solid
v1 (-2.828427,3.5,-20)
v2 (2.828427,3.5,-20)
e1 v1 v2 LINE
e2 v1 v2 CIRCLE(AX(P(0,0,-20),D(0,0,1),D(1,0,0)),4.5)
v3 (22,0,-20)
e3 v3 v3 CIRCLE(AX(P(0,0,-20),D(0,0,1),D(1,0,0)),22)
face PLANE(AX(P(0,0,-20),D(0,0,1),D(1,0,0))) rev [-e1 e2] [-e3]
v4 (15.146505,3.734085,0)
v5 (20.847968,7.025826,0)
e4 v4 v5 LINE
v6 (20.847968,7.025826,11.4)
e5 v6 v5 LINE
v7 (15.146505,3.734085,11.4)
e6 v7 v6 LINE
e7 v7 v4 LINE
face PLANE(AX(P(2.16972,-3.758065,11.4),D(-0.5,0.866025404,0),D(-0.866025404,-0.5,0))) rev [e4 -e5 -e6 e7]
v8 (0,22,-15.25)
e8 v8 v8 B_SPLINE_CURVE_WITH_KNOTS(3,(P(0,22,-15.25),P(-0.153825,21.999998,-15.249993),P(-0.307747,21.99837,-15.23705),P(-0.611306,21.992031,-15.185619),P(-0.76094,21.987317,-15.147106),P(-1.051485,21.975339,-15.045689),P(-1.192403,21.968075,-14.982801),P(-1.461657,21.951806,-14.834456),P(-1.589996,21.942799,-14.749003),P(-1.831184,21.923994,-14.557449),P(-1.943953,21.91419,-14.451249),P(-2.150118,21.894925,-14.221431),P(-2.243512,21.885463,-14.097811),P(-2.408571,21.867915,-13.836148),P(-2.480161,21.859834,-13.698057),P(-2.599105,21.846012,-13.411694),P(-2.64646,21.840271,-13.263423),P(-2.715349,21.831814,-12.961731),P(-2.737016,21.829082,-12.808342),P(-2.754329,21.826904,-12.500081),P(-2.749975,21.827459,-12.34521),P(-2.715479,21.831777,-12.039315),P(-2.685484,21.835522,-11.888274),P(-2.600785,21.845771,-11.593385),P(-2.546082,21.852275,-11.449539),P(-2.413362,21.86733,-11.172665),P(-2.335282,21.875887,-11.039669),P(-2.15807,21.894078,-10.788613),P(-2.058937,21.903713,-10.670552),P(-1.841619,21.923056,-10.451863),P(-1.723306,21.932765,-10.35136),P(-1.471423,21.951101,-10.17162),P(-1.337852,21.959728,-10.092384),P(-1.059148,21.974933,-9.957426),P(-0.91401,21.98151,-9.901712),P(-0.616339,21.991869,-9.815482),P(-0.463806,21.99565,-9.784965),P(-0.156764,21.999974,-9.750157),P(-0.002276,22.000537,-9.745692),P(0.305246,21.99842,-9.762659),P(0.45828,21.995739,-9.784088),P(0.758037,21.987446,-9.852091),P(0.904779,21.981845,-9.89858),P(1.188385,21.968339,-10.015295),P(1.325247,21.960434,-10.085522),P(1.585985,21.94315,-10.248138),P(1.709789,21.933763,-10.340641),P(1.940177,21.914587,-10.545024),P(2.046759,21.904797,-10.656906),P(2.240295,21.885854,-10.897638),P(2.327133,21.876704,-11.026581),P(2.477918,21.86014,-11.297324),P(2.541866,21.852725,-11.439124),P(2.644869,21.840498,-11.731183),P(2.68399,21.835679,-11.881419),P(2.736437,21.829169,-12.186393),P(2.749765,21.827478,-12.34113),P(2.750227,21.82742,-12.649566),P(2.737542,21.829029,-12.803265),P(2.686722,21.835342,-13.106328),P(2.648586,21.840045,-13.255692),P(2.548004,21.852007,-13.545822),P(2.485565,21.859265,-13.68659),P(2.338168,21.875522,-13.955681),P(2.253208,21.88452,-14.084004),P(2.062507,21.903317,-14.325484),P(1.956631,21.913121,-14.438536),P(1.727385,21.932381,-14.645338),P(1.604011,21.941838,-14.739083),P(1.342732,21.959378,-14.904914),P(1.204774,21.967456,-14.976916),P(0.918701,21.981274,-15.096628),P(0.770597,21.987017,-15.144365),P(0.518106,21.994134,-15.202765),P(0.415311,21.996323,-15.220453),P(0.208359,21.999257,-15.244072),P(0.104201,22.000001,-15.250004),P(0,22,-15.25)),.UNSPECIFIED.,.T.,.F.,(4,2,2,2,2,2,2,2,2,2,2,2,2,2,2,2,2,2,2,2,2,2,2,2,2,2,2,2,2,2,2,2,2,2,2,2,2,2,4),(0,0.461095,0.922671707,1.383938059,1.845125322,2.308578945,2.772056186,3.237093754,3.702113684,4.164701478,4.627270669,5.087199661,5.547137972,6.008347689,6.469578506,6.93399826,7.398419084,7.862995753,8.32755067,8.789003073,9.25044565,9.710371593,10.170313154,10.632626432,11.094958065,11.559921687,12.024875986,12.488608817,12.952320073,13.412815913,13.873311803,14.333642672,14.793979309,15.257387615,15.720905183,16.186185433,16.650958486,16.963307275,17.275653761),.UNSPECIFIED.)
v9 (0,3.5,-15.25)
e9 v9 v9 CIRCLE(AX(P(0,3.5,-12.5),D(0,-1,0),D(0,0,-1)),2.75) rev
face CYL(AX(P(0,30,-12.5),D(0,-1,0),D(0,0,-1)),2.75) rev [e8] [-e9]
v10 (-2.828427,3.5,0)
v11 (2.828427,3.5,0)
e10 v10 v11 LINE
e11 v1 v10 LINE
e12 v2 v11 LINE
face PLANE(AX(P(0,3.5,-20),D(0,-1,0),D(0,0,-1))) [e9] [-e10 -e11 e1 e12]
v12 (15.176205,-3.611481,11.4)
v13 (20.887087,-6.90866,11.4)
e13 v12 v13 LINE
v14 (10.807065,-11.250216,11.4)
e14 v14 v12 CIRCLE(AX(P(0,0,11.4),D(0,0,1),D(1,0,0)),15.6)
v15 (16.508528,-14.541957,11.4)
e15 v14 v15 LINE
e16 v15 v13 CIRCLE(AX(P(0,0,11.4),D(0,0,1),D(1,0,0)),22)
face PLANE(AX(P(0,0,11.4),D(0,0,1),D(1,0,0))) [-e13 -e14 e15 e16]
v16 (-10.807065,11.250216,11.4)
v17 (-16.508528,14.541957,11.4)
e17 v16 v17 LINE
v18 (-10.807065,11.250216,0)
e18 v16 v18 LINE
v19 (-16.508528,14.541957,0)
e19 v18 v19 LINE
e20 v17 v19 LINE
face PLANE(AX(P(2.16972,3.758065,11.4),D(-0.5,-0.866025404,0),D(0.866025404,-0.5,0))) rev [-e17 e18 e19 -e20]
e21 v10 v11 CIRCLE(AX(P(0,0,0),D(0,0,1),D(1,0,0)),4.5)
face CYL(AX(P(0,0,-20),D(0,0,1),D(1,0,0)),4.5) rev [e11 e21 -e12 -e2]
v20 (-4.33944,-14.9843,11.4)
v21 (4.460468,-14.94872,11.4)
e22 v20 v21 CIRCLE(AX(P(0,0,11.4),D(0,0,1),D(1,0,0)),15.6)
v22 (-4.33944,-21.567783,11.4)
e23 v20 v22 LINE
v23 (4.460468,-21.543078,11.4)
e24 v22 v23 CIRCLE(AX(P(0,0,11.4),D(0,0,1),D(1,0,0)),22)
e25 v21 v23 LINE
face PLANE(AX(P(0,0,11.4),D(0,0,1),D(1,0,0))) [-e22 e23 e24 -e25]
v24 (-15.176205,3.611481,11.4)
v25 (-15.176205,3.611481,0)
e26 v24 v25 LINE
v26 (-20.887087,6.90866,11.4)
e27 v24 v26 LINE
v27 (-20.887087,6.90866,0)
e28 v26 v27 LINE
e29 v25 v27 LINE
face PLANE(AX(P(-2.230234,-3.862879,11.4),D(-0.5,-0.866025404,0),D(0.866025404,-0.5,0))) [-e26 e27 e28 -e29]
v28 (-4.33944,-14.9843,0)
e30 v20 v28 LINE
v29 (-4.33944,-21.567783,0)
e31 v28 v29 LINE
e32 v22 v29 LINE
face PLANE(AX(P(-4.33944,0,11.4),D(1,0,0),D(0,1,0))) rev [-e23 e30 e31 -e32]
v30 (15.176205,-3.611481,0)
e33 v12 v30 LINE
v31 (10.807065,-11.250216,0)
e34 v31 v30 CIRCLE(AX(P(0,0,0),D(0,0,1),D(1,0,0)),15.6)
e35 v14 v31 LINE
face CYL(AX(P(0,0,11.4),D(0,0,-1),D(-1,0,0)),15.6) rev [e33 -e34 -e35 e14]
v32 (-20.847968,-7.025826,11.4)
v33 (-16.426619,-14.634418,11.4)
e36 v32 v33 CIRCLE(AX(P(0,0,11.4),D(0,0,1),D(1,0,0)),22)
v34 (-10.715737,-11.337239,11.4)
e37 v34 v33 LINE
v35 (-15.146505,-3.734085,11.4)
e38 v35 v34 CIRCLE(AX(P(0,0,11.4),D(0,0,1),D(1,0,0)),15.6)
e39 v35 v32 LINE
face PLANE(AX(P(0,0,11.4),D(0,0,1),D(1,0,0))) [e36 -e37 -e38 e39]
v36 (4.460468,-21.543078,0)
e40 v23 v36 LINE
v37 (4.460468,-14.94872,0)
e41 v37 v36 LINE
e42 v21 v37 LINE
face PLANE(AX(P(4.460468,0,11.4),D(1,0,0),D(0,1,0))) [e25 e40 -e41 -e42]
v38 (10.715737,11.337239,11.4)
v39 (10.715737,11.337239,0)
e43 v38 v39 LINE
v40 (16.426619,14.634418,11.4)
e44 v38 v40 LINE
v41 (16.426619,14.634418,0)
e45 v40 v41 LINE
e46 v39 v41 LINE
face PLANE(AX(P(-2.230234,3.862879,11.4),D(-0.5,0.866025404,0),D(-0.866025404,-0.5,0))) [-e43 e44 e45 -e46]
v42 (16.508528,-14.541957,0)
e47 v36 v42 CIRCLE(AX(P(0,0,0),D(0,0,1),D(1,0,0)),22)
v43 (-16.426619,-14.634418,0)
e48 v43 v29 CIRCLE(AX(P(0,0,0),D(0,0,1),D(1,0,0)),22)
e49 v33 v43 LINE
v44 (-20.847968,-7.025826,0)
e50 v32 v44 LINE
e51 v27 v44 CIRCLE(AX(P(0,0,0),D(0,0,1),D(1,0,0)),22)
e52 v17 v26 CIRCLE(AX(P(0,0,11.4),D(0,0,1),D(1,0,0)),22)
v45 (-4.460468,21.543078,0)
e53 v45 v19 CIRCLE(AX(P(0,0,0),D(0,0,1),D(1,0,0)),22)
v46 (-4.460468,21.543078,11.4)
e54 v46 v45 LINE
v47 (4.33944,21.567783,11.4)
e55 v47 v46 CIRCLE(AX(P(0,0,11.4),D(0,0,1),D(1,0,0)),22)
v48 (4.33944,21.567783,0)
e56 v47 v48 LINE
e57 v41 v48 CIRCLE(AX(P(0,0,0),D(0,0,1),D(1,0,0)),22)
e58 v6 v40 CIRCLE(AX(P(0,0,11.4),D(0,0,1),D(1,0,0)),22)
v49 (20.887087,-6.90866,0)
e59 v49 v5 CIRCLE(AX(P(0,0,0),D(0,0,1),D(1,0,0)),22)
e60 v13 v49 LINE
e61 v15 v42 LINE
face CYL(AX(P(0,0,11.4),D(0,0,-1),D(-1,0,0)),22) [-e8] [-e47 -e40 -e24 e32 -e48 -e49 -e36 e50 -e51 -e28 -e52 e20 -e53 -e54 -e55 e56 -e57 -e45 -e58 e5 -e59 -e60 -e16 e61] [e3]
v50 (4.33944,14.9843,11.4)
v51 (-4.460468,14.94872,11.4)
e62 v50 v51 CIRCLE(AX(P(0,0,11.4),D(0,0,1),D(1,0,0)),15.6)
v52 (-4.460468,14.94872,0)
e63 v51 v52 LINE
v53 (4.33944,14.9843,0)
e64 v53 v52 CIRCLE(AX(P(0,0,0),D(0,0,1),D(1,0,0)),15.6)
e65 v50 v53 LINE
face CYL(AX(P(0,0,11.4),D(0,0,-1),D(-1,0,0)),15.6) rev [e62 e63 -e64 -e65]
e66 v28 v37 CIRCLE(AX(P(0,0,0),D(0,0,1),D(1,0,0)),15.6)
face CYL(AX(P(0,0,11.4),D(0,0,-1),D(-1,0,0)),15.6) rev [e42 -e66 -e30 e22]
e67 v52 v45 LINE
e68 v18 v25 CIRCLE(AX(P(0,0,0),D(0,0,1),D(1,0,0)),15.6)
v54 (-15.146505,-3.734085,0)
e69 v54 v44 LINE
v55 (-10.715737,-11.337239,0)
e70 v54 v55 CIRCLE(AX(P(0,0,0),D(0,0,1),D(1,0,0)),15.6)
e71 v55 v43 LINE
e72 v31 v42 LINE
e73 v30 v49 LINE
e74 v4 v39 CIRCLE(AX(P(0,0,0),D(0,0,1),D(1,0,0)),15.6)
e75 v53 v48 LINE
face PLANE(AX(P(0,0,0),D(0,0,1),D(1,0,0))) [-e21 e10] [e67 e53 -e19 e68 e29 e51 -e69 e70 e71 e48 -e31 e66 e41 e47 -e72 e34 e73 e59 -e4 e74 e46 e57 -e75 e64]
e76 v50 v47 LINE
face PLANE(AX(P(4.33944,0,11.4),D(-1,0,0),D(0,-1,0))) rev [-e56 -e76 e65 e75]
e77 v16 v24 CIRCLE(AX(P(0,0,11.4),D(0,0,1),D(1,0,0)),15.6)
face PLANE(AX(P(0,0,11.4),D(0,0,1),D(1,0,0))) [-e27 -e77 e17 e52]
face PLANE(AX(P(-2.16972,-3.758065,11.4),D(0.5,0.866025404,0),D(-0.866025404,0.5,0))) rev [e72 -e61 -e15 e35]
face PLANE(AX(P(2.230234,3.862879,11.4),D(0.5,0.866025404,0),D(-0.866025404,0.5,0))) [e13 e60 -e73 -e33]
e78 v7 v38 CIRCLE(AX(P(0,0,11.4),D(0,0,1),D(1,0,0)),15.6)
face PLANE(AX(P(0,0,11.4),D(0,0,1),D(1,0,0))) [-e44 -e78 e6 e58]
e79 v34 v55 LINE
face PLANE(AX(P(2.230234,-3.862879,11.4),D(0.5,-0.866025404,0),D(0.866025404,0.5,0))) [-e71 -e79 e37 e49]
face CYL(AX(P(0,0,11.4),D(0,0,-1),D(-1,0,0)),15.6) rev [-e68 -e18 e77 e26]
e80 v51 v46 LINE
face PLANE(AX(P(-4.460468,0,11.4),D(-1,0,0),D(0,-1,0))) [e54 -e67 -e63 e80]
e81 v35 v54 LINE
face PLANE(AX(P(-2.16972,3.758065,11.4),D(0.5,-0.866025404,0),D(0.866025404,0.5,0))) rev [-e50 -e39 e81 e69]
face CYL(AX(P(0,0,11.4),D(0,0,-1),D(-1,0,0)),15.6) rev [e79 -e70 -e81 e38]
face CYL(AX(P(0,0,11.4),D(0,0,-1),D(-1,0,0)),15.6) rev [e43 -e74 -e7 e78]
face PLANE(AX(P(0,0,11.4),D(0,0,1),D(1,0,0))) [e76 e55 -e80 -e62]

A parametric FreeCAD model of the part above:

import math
import FreeCAD as App
import Part
import Sketcher

V = App.Vector
Q = App.Units.Quantity

doc = App.newDocument("Part")
body = doc.addObject("PartDesign::Body", "Body")

# Sketch on XY plane
sketch1 = doc.addObject("Sketcher::SketchObject", "Sketch")
body.addObject(sketch1)
sketch1.AttachmentSupport = (doc.XY_Plane, [""])
sketch1.MapMode = "FlatFace"
sketch1.addGeometry([
    Part.ArcOfCircle(Part.Circle(V(0, 0, 0), V(0, 0, 1), 16), math.radians(74), math.radians(107)),
    Part.LineSegment(V(4, 15, 0), V(4, 22, 0)),
    Part.ArcOfCircle(Part.Circle(V(0, 0, 0), V(0, 0, 1), 22), math.radians(79), math.radians(102)),
    Part.LineSegment(V(-4, 22, 0), V(-4, 15, 0)),
], False)
sketch1.addConstraint([
    Sketcher.Constraint("Coincident", 0, 1, 1, 1),
    Sketcher.Constraint("Coincident", 1, 2, 2, 1),
    Sketcher.Constraint("Coincident", 2, 2, 3, 1),
    Sketcher.Constraint("Coincident", 3, 2, 0, 2),
    Sketcher.Constraint("Vertical", 1),
    Sketcher.Constraint("Vertical", 3),
    Sketcher.Constraint("Coincident", 0, 3, -1, 1),
    Sketcher.Constraint("Coincident", 2, 3, -1, 1),
    Sketcher.Constraint("Radius", 2, Q("22 mm")),
    Sketcher.Constraint("Radius", 0, Q("15.6 mm")),
    Sketcher.Constraint("DistanceY", 3, 2, 3, 1, Q("6.594359 mm")),
    Sketcher.Constraint("DistanceY", -1, 1, 0, 1, Q("14.9843 mm")),
])
pad1 = doc.addObject("PartDesign::Pad", "Pad")
body.addObject(pad1)
pad1.Profile = sketch1
pad1.Length = 11.4
body2 = doc.addObject("PartDesign::Body", "Body001")

# Sketch on XY plane
sketch2 = doc.addObject("Sketcher::SketchObject", "Sketch001")
body2.addObject(sketch2)
sketch2.AttachmentSupport = (doc.getObject("XY_Plane001"), [""])
sketch2.MapMode = "FlatFace"
sketch2.addGeometry([
    Part.LineSegment(V(16, 15, 0), V(11, 11, 0)),
    Part.ArcOfCircle(Part.Circle(V(0, 0, 0), V(0, 0, 1), 16), math.radians(14), math.radians(47)),
    Part.LineSegment(V(15, 4, 0), V(21, 7, 0)),
    Part.ArcOfCircle(Part.Circle(V(0, 0, 0), V(0, 0, 1), 22), math.radians(19), math.radians(42)),
], False)
sketch2.addConstraint([
    Sketcher.Constraint("Coincident", 0, 2, 1, 2),
    Sketcher.Constraint("Coincident", 1, 1, 2, 1),
    Sketcher.Constraint("Coincident", 2, 2, 3, 1),
    Sketcher.Constraint("Coincident", 3, 2, 0, 1),
    Sketcher.Constraint("Coincident", 1, 3, -1, 1),
    Sketcher.Constraint("Coincident", 3, 3, -1, 1),
    Sketcher.Constraint("Parallel", 0, 2),
    Sketcher.Constraint("Radius", 3, Q("22 mm")),
    Sketcher.Constraint("Radius", 1, Q("15.6 mm")),
    Sketcher.Constraint("Angle", 0, Q("-150 deg")),
    Sketcher.Constraint("Distance", 0, Q("6.594359 mm")),
    Sketcher.Constraint("DistanceX", 0, 2, 2, 2, Q("10.132231 mm")),
])
pad2 = doc.addObject("PartDesign::Pad", "Pad001")
body2.addObject(pad2)
pad2.Profile = sketch2
pad2.Length = 11.4
body3 = doc.addObject("PartDesign::Body", "Body002")

# Sketch on XY plane
sketch3 = doc.addObject("Sketcher::SketchObject", "Sketch002")
body3.addObject(sketch3)
sketch3.AttachmentSupport = (doc.getObject("XY_Plane002"), [""])
sketch3.MapMode = "FlatFace"
sketch3.addGeometry([
    Part.LineSegment(V(21, -7, 0), V(15, -4, 0)),
    Part.ArcOfCircle(Part.Circle(V(0, 0, 0), V(0, 0, 1), 16), math.radians(-46), math.radians(-13)),
    Part.LineSegment(V(11, -11, 0), V(17, -15, 0)),
    Part.ArcOfCircle(Part.Circle(V(0, 0, 0), V(0, 0, 1), 22), math.radians(-41), math.radians(-18)),
], False)
sketch3.addConstraint([
    Sketcher.Constraint("Coincident", 0, 2, 1, 2),
    Sketcher.Constraint("Coincident", 1, 1, 2, 1),
    Sketcher.Constraint("Coincident", 2, 2, 3, 1),
    Sketcher.Constraint("Coincident", 3, 2, 0, 1),
    Sketcher.Constraint("Coincident", 1, 3, -1, 1),
    Sketcher.Constraint("Coincident", 3, 3, -1, 1),
    Sketcher.Constraint("Parallel", 0, 2),
    Sketcher.Constraint("Radius", 3, Q("22 mm")),
    Sketcher.Constraint("Radius", 1, Q("15.6 mm")),
    Sketcher.Constraint("Angle", 0, Q("150 deg")),
    Sketcher.Constraint("Distance", 0, Q("6.594359 mm")),
    Sketcher.Constraint("DistanceX", 1, 1, 0, 2, Q("4.36914 mm")),
])
pad3 = doc.addObject("PartDesign::Pad", "Pad002")
body3.addObject(pad3)
pad3.Profile = sketch3
pad3.Length = 11.4
body4 = doc.addObject("PartDesign::Body", "Body003")

# Sketch on XY plane
sketch4 = doc.addObject("Sketcher::SketchObject", "Sketch003")
body4.addObject(sketch4)
sketch4.AttachmentSupport = (doc.getObject("XY_Plane003"), [""])
sketch4.MapMode = "FlatFace"
sketch4.addGeometry([
    Part.LineSegment(V(4, -22, 0), V(4, -15, 0)),
    Part.ArcOfCircle(Part.Circle(V(0, 0, 0), V(0, 0, 1), 16), math.radians(-106), math.radians(-73)),
    Part.LineSegment(V(-4, -15, 0), V(-4, -22, 0)),
    Part.ArcOfCircle(Part.Circle(V(0, 0, 0), V(0, 0, 1), 22), math.radians(-101), math.radians(-78)),
], False)
sketch4.addConstraint([
    Sketcher.Constraint("Coincident", 0, 2, 1, 2),
    Sketcher.Constraint("Coincident", 1, 1, 2, 1),
    Sketcher.Constraint("Coincident", 2, 2, 3, 1),
    Sketcher.Constraint("Coincident", 3, 2, 0, 1),
    Sketcher.Constraint("Vertical", 0),
    Sketcher.Constraint("Vertical", 2),
    Sketcher.Constraint("Coincident", 1, 3, -1, 1),
    Sketcher.Constraint("Coincident", 3, 3, -1, 1),
    Sketcher.Constraint("Radius", 3, Q("22 mm")),
    Sketcher.Constraint("Radius", 1, Q("15.6 mm")),
    Sketcher.Constraint("DistanceY", 0, 1, 0, 2, Q("6.594359 mm")),
    Sketcher.Constraint("DistanceY", 1, 1, -1, 1, Q("14.9843 mm")),
])
pad4 = doc.addObject("PartDesign::Pad", "Pad003")
body4.addObject(pad4)
pad4.Profile = sketch4
pad4.Length = 11.4
body5 = doc.addObject("PartDesign::Body", "Body004")

# Sketch on XY plane
sketch5 = doc.addObject("Sketcher::SketchObject", "Sketch004")
body5.addObject(sketch5)
sketch5.AttachmentSupport = (doc.getObject("XY_Plane004"), [""])
sketch5.MapMode = "FlatFace"
sketch5.addGeometry([
    Part.ArcOfCircle(Part.Circle(V(0, 0, 0), V(0, 0, 1), 16), math.radians(-166), math.radians(-133)),
    Part.LineSegment(V(-15, -4, 0), V(-21, -7, 0)),
    Part.ArcOfCircle(Part.Circle(V(0, 0, 0), V(0, 0, 1), 22), math.radians(-161), math.radians(-138)),
    Part.LineSegment(V(-16, -15, 0), V(-11, -11, 0)),
], False)
sketch5.addConstraint([
    Sketcher.Constraint("Coincident", 0, 1, 1, 1),
    Sketcher.Constraint("Coincident", 1, 2, 2, 1),
    Sketcher.Constraint("Coincident", 2, 2, 3, 1),
    Sketcher.Constraint("Coincident", 3, 2, 0, 2),
    Sketcher.Constraint("Coincident", 0, 3, -1, 1),
    Sketcher.Constraint("Coincident", 2, 3, -1, 1),
    Sketcher.Constraint("Parallel", 1, 3),
    Sketcher.Constraint("Radius", 2, Q("22 mm")),
    Sketcher.Constraint("Radius", 0, Q("15.6 mm")),
    Sketcher.Constraint("Angle", 1, Q("-150 deg")),
    Sketcher.Constraint("Distance", 3, Q("6.594359 mm")),
    Sketcher.Constraint("DistanceX", 1, 2, 2, 2, Q("4.421349 mm")),
])
pad5 = doc.addObject("PartDesign::Pad", "Pad004")
body5.addObject(pad5)
pad5.Profile = sketch5
pad5.Length = 11.4
body6 = doc.addObject("PartDesign::Body", "Body005")

# Sketch on XY plane
sketch6 = doc.addObject("Sketcher::SketchObject", "Sketch005")
body6.addObject(sketch6)
sketch6.AttachmentSupport = (doc.getObject("XY_Plane005"), [""])
sketch6.MapMode = "FlatFace"
sketch6.addGeometry([
    Part.ArcOfCircle(Part.Circle(V(0, 0, 0), V(0, 0, 1), 16), math.radians(134), math.radians(167)),
    Part.LineSegment(V(-11, 11, 0), V(-17, 15, 0)),
    Part.ArcOfCircle(Part.Circle(V(0, 0, 0), V(0, 0, 1), 22), math.radians(139), math.radians(162)),
    Part.LineSegment(V(-21, 7, 0), V(-15, 4, 0)),
], False)
sketch6.addConstraint([
    Sketcher.Constraint("Coincident", 0, 1, 1, 1),
    Sketcher.Constraint("Coincident", 1, 2, 2, 1),
    Sketcher.Constraint("Coincident", 2, 2, 3, 1),
    Sketcher.Constraint("Coincident", 3, 2, 0, 2),
    Sketcher.Constraint("Coincident", 0, 3, -1, 1),
    Sketcher.Constraint("Coincident", 2, 3, -1, 1),
    Sketcher.Constraint("Parallel", 1, 3),
    Sketcher.Constraint("Radius", 2, Q("22 mm")),
    Sketcher.Constraint("Radius", 0, Q("15.6 mm")),
    Sketcher.Constraint("Angle", 1, Q("150 deg")),
    Sketcher.Constraint("Distance", 3, Q("6.594359 mm")),
    Sketcher.Constraint("DistanceY", 0, 1, 1, 2, Q("3.291741 mm")),
])
pad6 = doc.addObject("PartDesign::Pad", "Pad005")
body6.addObject(pad6)
pad6.Profile = sketch6
pad6.Length = 11.4
body.AllowCompound = True
doc.recompute()

boolean = doc.addObject("PartDesign::Boolean", "Boolean")
body.addObject(boolean)
boolean.Type = "Fuse"
boolean.addObjects([body2])
doc.recompute()

boolean2 = doc.addObject("PartDesign::Boolean", "Boolean001")
body.addObject(boolean2)
boolean2.Type = "Fuse"
boolean2.addObjects([body3])
doc.recompute()

boolean3 = doc.addObject("PartDesign::Boolean", "Boolean002")
body.addObject(boolean3)
boolean3.Type = "Fuse"
boolean3.addObjects([body4])
doc.recompute()

boolean4 = doc.addObject("PartDesign::Boolean", "Boolean003")
body.addObject(boolean4)
boolean4.Type = "Fuse"
boolean4.addObjects([body5])
doc.recompute()

boolean5 = doc.addObject("PartDesign::Boolean", "Boolean004")
body.addObject(boolean5)
boolean5.Type = "Fuse"
boolean5.addObjects([body6])

# Sketch on XY plane
sketch7 = doc.addObject("Sketcher::SketchObject", "Sketch006")
body.addObject(sketch7)
sketch7.AttachmentSupport = (doc.XY_Plane, [""])
sketch7.MapMode = "FlatFace"
sketch7.AttachmentOffset = App.Placement(V(0, 0, -20), App.Rotation())
sketch7.addGeometry([
    Part.ArcOfCircle(Part.Circle(V(0, 0, 0), V(0, 0, 1), 22), math.radians(42), math.radians(79)),  # 0
    Part.ArcOfCircle(Part.Circle(V(0, 0, 0), V(0, 0, 1), 22), math.radians(79), math.radians(102)),  # 1
    Part.ArcOfCircle(Part.Circle(V(0, 0, 0), V(0, 0, 1), 22), math.radians(102), math.radians(139)),  # 2
    Part.ArcOfCircle(Part.Circle(V(0, 0, 0), V(0, 0, 1), 22), math.radians(139), math.radians(162)),  # 3
    Part.ArcOfCircle(Part.Circle(V(0, 0, 0), V(0, 0, 1), 22), math.radians(162), math.radians(199)),  # 4
    Part.ArcOfCircle(Part.Circle(V(0, 0, 0), V(0, 0, 1), 22), math.radians(-161), math.radians(-138)),  # 5
    Part.ArcOfCircle(Part.Circle(V(0, 0, 0), V(0, 0, 1), 22), math.radians(-138), math.radians(-101)),  # 6
    Part.ArcOfCircle(Part.Circle(V(0, 0, 0), V(0, 0, 1), 22), math.radians(-101), math.radians(-78)),  # 7
    Part.ArcOfCircle(Part.Circle(V(0, 0, 0), V(0, 0, 1), 22), math.radians(-78), math.radians(-41)),  # 8
    Part.ArcOfCircle(Part.Circle(V(0, 0, 0), V(0, 0, 1), 22), math.radians(-41), math.radians(-18)),  # 9
    Part.ArcOfCircle(Part.Circle(V(0, 0, 0), V(0, 0, 1), 22), math.radians(-18.3), math.radians(0)),  # 10
    Part.ArcOfCircle(Part.Circle(V(0, 0, 0), V(0, 0, 1), 22), math.radians(0), math.radians(18.62)),  # 11
    Part.ArcOfCircle(Part.Circle(V(0, 0, 0), V(0, 0, 1), 22), math.radians(19), math.radians(42)),  # 12
    Part.LineSegment(V(-2.8, 3.5, 0), V(2.8, 3.5, 0)),  # 13
    Part.ArcOfCircle(Part.Circle(V(0, 0, 0), V(0, 0, 1), 4.5), math.radians(129), math.radians(411)),  # 14
], False)
sketch7.addConstraint([
    Sketcher.Constraint("Tangent", 0, 2, 1, 1),
    Sketcher.Constraint("Tangent", 1, 2, 2, 1),
    Sketcher.Constraint("Tangent", 2, 2, 3, 1),
    Sketcher.Constraint("Tangent", 3, 2, 4, 1),
    Sketcher.Constraint("Tangent", 4, 2, 5, 1),
    Sketcher.Constraint("Tangent", 5, 2, 6, 1),
    Sketcher.Constraint("Tangent", 6, 2, 7, 1),
    Sketcher.Constraint("Tangent", 7, 2, 8, 1),
    Sketcher.Constraint("Tangent", 8, 2, 9, 1),
    Sketcher.Constraint("Tangent", 9, 2, 10, 1),
    Sketcher.Constraint("Tangent", 10, 2, 11, 1),
    Sketcher.Constraint("Tangent", 11, 2, 12, 1),
    Sketcher.Constraint("Tangent", 12, 2, 0, 1),
    Sketcher.Constraint("Coincident", 13, 1, 14, 1),
    Sketcher.Constraint("Coincident", 14, 2, 13, 2),
    Sketcher.Constraint("Horizontal", 13),
    Sketcher.Constraint("Coincident", 0, 3, -1, 1),
    Sketcher.Constraint("Coincident", 2, 3, -1, 1),
    Sketcher.Constraint("Coincident", 4, 3, -1, 1),
    Sketcher.Constraint("Coincident", 6, 3, -1, 1),
    Sketcher.Constraint("Coincident", 8, 3, -1, 1),
    Sketcher.Constraint("Coincident", 10, 3, -1, 1),
    Sketcher.Constraint("Coincident", 14, 3, -1, 1),
    Sketcher.Constraint("PointOnObject", 10, 2, -1),
    Sketcher.Constraint("Radius", 0, Q("22 mm")),
    Sketcher.Constraint("Radius", 14, Q("4.5 mm")),
    Sketcher.Constraint("DistanceY", -1, 1, 13, 1, Q("3.5 mm")),
    Sketcher.Constraint("DistanceX", -1, 1, 0, 2, Q("4.33944 mm")),
    Sketcher.Constraint("DistanceX", 1, 2, -1, 1, Q("4.460468 mm")),
    Sketcher.Constraint("DistanceY", -1, 1, 3, 2, Q("6.90866 mm")),
    Sketcher.Constraint("DistanceX", 5, 2, -1, 1, Q("16.426619 mm")),
    Sketcher.Constraint("DistanceX", 6, 2, -1, 1, Q("4.33944 mm")),
    Sketcher.Constraint("DistanceX", -1, 1, 7, 2, Q("4.460468 mm")),
    Sketcher.Constraint("DistanceY", 9, 2, -1, 1, Q("6.90866 mm")),
    Sketcher.Constraint("DistanceX", -1, 1, 12, 2, Q("16.426619 mm")),
    Sketcher.Constraint("DistanceX", 2, 2, 1, 2, Q("12.04806 mm")),
    Sketcher.Constraint("DistanceX", 3, 2, 4, 2, Q("0.039119 mm")),
    Sketcher.Constraint("DistanceX", 7, 2, 8, 2, Q("12.04806 mm")),
    Sketcher.Constraint("DistanceX", 11, 2, 9, 2, Q("0.039119 mm")),
])
pad7 = doc.addObject("PartDesign::Pad", "Pad006")
body.addObject(pad7)
pad7.Profile = sketch7
pad7.Length = 20

# Sketch on XZ plane
sketch8 = doc.addObject("Sketcher::SketchObject", "Sketch007")
body.addObject(sketch8)
sketch8.AttachmentSupport = (doc.XZ_Plane, [""])
sketch8.MapMode = "FlatFace"
sketch8.addGeometry(Part.Circle(V(0, -12.5, 0), V(0, 0, 1), 2.8), False)
sketch8.addConstraint([
    Sketcher.Constraint("PointOnObject", 0, 3, -2),
    Sketcher.Constraint("Diameter", 0, Q("5.5 mm")),
    Sketcher.Constraint("DistanceY", 0, 3, -1, 1, Q("12.5 mm")),
])
pocket1 = doc.addObject("PartDesign::Pocket", "Pocket")
body.addObject(pocket1)
pocket1.Profile = sketch8
pocket1.Length = 30

doc.recompute()
